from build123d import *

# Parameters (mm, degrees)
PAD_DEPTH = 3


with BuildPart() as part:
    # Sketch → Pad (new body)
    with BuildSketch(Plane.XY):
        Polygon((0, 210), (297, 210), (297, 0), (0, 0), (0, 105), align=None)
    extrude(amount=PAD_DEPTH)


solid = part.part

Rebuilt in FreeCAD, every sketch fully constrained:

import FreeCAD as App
import Part
import Sketcher

V = App.Vector


def add_polygon(sketch, points):
    """Adds a closed chain of lines whose ends are joined by coincident constraints."""
    first, n = sketch.GeometryCount, len(points)
    for a, b in zip(points, points[1:] + points[:1]):
        sketch.addGeometry(Part.LineSegment(App.Vector(*a, 0), App.Vector(*b, 0)), False)
    for i in range(n):
        sketch.addConstraint(Sketcher.Constraint("Coincident", first + i, 2, first + (i + 1) % n, 1))

doc = App.newDocument("Part")
body = doc.addObject("PartDesign::Body", "Body")

# Sketch on XY plane
sketch1 = body.newObject("Sketcher::SketchObject", "Sketch")
sketch1.AttachmentSupport = (doc.getObject("XY_Plane"), [""])
sketch1.MapMode = "FlatFace"
add_polygon(sketch1, [(297, 210), (0, 210), (0, 0), (297, 0)])  # lines 0-3
sketch1.addConstraint([
    Sketcher.Constraint("Horizontal", 0),
    Sketcher.Constraint("Vertical", 1),
    Sketcher.Constraint("Horizontal", 2),
    Sketcher.Constraint("Vertical", 3),
    Sketcher.Constraint("Coincident", 1, 2, -1, 1),
    Sketcher.Constraint("DistanceX", 0, 2, 0, 1, 297.0),
    Sketcher.Constraint("DistanceY", 1, 2, 1, 1, 210.0),
])
pad1 = body.newObject("PartDesign::Pad", "Pad")
pad1.Profile = sketch1
pad1.Length = 3

doc.recompute()
